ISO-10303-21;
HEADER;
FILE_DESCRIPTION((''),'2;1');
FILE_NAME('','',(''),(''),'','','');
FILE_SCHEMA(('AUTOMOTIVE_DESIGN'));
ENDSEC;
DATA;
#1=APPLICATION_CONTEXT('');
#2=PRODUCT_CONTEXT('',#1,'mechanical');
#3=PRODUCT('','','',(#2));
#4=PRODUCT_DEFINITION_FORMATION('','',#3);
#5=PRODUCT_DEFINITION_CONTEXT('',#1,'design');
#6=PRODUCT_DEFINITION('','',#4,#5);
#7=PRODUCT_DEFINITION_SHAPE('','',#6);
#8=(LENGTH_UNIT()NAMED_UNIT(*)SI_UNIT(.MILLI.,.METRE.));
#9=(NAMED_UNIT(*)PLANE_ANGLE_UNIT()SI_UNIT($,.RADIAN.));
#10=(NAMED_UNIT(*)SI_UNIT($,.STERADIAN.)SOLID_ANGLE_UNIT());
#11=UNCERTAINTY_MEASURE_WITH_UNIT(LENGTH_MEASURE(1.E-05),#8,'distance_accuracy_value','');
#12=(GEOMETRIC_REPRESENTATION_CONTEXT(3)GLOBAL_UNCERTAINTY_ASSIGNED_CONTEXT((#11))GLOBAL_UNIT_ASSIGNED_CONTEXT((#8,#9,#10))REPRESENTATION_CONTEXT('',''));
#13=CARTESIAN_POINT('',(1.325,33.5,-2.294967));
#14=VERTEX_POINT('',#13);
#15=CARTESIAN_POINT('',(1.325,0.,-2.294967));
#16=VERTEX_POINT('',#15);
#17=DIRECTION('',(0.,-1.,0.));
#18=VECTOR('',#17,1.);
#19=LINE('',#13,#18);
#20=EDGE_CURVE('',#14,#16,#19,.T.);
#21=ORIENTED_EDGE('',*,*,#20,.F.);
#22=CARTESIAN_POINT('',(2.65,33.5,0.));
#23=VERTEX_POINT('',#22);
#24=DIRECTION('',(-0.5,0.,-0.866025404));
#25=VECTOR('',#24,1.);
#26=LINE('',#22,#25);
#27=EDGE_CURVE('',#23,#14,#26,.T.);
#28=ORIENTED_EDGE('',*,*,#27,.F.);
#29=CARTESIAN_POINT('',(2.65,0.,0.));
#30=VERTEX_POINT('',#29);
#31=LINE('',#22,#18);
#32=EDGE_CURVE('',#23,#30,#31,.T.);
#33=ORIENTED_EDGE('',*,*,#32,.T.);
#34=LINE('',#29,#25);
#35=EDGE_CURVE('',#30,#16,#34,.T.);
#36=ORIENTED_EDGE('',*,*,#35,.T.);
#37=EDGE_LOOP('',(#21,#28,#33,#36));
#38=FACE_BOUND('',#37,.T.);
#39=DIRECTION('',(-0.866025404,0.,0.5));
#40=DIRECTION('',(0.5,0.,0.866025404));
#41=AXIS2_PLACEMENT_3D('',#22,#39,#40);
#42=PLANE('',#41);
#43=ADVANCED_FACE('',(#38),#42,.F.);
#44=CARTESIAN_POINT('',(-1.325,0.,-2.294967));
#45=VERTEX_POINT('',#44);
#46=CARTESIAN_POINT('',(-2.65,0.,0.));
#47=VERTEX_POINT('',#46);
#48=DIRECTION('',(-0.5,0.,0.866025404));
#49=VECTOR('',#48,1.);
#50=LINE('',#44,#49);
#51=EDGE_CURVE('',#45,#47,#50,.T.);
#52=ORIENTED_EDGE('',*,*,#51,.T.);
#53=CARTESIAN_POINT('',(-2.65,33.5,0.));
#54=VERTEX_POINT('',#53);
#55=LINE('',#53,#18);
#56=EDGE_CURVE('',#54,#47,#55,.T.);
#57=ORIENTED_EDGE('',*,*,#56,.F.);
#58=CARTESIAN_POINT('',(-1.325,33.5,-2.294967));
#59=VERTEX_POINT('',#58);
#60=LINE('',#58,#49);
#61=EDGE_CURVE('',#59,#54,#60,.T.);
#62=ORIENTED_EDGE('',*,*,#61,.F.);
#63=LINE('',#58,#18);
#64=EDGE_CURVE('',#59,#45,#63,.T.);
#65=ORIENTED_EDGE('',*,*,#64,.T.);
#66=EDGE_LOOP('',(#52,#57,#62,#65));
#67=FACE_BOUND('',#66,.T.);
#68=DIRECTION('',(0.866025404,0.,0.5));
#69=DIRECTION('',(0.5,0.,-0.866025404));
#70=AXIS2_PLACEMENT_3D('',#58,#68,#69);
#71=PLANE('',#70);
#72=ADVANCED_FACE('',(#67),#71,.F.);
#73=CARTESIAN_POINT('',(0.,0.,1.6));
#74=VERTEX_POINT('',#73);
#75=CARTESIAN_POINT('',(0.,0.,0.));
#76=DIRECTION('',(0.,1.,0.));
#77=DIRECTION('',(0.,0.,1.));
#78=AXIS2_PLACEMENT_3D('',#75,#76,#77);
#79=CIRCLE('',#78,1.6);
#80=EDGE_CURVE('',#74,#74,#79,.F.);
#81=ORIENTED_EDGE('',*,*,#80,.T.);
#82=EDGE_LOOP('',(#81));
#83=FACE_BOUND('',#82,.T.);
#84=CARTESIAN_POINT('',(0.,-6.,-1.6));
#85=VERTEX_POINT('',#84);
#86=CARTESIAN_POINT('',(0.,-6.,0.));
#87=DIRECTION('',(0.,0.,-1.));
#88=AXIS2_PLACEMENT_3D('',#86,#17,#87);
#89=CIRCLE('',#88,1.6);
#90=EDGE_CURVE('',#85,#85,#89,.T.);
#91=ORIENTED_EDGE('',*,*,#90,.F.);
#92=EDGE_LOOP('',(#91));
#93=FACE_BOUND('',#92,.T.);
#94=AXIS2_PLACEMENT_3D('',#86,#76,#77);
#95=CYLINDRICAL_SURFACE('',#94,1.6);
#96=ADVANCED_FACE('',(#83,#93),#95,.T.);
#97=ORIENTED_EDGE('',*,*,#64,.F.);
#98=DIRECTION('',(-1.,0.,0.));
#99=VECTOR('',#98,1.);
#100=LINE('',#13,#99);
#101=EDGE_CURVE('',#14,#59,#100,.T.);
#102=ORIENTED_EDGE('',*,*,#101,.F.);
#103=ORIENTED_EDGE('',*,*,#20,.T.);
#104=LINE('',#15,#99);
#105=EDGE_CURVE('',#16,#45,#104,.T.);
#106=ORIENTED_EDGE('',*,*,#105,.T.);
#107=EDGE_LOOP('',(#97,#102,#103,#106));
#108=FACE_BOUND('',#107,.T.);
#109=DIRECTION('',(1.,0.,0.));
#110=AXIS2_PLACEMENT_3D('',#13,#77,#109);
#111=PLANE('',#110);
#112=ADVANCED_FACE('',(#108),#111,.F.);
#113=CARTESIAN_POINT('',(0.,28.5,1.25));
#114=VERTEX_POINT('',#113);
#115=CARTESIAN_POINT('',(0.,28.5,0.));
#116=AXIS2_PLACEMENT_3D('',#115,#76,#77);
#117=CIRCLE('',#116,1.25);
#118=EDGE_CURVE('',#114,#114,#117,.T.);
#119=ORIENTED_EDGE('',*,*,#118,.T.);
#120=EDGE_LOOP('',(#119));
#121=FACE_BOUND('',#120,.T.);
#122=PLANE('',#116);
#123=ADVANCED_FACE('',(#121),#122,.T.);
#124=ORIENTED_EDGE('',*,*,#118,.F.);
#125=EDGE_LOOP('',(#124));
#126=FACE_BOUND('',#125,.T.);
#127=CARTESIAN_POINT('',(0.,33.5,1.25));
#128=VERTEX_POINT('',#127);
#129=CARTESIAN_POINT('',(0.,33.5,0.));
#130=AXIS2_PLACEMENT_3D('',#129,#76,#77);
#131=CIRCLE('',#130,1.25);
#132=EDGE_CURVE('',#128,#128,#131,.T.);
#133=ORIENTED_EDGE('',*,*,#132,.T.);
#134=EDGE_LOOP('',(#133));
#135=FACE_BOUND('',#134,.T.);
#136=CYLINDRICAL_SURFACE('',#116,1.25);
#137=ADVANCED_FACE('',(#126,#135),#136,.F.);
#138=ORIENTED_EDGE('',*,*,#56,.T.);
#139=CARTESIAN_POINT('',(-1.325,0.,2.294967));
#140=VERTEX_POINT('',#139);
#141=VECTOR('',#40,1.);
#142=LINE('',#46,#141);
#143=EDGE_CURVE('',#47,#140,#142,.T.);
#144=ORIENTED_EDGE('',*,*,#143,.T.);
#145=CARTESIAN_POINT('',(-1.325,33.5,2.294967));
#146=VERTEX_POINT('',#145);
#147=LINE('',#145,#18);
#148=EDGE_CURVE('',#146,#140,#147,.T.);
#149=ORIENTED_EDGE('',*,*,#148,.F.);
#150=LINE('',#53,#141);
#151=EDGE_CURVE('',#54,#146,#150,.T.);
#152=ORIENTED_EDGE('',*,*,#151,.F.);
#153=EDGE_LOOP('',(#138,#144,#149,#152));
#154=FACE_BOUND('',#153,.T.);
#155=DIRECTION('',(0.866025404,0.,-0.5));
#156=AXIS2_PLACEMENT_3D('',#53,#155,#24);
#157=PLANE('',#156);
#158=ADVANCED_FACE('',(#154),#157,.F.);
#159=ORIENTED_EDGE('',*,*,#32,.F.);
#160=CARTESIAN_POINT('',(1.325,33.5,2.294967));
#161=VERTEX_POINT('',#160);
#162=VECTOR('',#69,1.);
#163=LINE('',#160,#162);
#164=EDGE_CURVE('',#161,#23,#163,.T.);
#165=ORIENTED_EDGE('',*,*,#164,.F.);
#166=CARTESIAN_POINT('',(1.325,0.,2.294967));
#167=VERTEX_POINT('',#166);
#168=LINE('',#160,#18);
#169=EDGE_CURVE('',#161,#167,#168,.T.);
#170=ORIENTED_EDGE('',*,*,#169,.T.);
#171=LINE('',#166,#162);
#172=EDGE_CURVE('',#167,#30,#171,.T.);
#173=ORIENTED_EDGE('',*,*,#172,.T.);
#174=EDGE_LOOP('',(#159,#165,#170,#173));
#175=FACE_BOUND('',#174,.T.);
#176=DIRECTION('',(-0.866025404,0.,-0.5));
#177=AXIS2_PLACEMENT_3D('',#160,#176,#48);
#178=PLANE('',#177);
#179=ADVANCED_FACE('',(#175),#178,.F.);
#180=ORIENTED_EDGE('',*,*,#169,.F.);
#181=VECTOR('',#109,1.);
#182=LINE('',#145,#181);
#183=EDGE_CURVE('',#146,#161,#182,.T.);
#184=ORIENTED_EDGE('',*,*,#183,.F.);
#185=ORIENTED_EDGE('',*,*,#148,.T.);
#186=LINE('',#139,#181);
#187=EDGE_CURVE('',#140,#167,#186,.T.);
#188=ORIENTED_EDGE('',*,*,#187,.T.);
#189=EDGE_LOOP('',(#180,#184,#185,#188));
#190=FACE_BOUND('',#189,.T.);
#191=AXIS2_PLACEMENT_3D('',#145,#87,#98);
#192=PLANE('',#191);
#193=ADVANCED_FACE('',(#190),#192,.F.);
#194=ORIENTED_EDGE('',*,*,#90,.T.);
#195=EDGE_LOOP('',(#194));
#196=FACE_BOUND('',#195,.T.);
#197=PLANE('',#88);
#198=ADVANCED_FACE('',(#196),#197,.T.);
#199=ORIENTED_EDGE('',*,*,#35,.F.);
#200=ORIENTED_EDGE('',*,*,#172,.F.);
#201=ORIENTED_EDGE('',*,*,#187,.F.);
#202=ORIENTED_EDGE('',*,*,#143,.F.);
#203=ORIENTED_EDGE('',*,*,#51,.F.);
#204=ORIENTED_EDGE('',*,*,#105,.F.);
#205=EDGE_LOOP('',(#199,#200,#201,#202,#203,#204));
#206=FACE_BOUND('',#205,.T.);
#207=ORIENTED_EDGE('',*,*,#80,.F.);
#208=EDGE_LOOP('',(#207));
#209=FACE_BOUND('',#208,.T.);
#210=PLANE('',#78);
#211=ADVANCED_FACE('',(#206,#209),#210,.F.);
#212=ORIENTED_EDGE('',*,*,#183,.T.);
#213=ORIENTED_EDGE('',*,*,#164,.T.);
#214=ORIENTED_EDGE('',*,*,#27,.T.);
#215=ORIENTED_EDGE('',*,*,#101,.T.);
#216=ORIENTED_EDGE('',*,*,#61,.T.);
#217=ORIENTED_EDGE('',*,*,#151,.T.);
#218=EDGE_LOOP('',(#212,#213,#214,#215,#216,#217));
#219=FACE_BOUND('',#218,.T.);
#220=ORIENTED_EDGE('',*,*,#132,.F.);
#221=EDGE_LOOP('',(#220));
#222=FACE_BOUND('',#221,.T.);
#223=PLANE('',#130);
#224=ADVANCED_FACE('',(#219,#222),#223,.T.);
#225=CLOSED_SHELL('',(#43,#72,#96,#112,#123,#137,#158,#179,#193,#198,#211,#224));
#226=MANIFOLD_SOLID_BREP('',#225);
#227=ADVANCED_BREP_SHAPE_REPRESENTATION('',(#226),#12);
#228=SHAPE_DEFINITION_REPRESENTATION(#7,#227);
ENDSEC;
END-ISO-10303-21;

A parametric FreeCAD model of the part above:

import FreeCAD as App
import Part
import Sketcher

V = App.Vector
Q = App.Units.Quantity


def add_polygon(sketch, points):
    """Adds a closed chain of lines whose ends are joined by coincident constraints."""
    first, n = sketch.GeometryCount, len(points)
    for a, b in zip(points, points[1:] + points[:1]):
        sketch.addGeometry(Part.LineSegment(App.Vector(*a, 0), App.Vector(*b, 0)), False)
    for i in range(n):
        sketch.addConstraint(Sketcher.Constraint("Coincident", first + i, 2, first + (i + 1) % n, 1))

doc = App.newDocument("Part")
body = doc.addObject("PartDesign::Body", "Body")

# Sketch on XZ plane
sketch1 = body.newObject("Sketcher::SketchObject", "Sketch")
sketch1.AttachmentSupport = (doc.getObject("XZ_Plane"), [""])
sketch1.MapMode = "FlatFace"
add_polygon(sketch1, [(1.3, 2.3), (2.6, 0), (1.3, -2.3), (-1.3, -2.3), (-2.6, 0), (-1.3, 2.3)])  # lines 0-5
sketch1.addConstraint([
    Sketcher.Constraint("Horizontal", 2),
    Sketcher.Constraint("Horizontal", 5),
    Sketcher.Constraint("Symmetric", 0, 2, 3, 2, -1, 1),
    Sketcher.Constraint("Symmetric", 1, 2, 4, 2, -1, 1),
    Sketcher.Constraint("PointOnObject", 0, 2, -1),
    Sketcher.Constraint("Parallel", 0, 3),
    Sketcher.Constraint("Vertical", 2, 2, 4, 2),
    Sketcher.Constraint("Angle", 0, Q("-60 deg")),
    Sketcher.Constraint("DistanceX", 2, 2, 2, 1, 2.65),
    Sketcher.Constraint("DistanceX", 3, 2, 0, 2, 5.3),
])
pad1 = body.newObject("PartDesign::Pad", "Pad")
pad1.Profile = sketch1
pad1.Length = 33.5
pad1.Reversed = True

# Sketch on XZ plane
sketch2 = body.newObject("Sketcher::SketchObject", "Sketch001")
sketch2.AttachmentSupport = (doc.getObject("XZ_Plane"), [""])
sketch2.MapMode = "FlatFace"
sketch2.addGeometry(Part.Circle(V(0, 0, 0), V(0, 0, 1), 1.6), False)
sketch2.addConstraint([
    Sketcher.Constraint("Coincident", 0, 3, -1, 1),
    Sketcher.Constraint("Diameter", 0, 3.2),
])
pad2 = body.newObject("PartDesign::Pad", "Pad001")
pad2.Profile = sketch2
pad2.Length = 6

# Sketch on XZ plane
sketch3 = body.newObject("Sketcher::SketchObject", "Sketch002")
sketch3.AttachmentSupport = (doc.getObject("XZ_Plane"), [""])
sketch3.MapMode = "FlatFace"
sketch3.AttachmentOffset = App.Placement(V(0, 0, -33.5), App.Rotation())
sketch3.addGeometry(Part.Circle(V(0, 0, 0), V(0, 0, 1), 1.2), False)
sketch3.addConstraint([
    Sketcher.Constraint("Coincident", 0, 3, -1, 1),
    Sketcher.Constraint("Diameter", 0, 2.5),
])
pocket1 = body.newObject("PartDesign::Pocket", "Pocket")
pocket1.Profile = sketch3
pocket1.Length = 5
pocket1.Reversed = True

doc.recompute()
